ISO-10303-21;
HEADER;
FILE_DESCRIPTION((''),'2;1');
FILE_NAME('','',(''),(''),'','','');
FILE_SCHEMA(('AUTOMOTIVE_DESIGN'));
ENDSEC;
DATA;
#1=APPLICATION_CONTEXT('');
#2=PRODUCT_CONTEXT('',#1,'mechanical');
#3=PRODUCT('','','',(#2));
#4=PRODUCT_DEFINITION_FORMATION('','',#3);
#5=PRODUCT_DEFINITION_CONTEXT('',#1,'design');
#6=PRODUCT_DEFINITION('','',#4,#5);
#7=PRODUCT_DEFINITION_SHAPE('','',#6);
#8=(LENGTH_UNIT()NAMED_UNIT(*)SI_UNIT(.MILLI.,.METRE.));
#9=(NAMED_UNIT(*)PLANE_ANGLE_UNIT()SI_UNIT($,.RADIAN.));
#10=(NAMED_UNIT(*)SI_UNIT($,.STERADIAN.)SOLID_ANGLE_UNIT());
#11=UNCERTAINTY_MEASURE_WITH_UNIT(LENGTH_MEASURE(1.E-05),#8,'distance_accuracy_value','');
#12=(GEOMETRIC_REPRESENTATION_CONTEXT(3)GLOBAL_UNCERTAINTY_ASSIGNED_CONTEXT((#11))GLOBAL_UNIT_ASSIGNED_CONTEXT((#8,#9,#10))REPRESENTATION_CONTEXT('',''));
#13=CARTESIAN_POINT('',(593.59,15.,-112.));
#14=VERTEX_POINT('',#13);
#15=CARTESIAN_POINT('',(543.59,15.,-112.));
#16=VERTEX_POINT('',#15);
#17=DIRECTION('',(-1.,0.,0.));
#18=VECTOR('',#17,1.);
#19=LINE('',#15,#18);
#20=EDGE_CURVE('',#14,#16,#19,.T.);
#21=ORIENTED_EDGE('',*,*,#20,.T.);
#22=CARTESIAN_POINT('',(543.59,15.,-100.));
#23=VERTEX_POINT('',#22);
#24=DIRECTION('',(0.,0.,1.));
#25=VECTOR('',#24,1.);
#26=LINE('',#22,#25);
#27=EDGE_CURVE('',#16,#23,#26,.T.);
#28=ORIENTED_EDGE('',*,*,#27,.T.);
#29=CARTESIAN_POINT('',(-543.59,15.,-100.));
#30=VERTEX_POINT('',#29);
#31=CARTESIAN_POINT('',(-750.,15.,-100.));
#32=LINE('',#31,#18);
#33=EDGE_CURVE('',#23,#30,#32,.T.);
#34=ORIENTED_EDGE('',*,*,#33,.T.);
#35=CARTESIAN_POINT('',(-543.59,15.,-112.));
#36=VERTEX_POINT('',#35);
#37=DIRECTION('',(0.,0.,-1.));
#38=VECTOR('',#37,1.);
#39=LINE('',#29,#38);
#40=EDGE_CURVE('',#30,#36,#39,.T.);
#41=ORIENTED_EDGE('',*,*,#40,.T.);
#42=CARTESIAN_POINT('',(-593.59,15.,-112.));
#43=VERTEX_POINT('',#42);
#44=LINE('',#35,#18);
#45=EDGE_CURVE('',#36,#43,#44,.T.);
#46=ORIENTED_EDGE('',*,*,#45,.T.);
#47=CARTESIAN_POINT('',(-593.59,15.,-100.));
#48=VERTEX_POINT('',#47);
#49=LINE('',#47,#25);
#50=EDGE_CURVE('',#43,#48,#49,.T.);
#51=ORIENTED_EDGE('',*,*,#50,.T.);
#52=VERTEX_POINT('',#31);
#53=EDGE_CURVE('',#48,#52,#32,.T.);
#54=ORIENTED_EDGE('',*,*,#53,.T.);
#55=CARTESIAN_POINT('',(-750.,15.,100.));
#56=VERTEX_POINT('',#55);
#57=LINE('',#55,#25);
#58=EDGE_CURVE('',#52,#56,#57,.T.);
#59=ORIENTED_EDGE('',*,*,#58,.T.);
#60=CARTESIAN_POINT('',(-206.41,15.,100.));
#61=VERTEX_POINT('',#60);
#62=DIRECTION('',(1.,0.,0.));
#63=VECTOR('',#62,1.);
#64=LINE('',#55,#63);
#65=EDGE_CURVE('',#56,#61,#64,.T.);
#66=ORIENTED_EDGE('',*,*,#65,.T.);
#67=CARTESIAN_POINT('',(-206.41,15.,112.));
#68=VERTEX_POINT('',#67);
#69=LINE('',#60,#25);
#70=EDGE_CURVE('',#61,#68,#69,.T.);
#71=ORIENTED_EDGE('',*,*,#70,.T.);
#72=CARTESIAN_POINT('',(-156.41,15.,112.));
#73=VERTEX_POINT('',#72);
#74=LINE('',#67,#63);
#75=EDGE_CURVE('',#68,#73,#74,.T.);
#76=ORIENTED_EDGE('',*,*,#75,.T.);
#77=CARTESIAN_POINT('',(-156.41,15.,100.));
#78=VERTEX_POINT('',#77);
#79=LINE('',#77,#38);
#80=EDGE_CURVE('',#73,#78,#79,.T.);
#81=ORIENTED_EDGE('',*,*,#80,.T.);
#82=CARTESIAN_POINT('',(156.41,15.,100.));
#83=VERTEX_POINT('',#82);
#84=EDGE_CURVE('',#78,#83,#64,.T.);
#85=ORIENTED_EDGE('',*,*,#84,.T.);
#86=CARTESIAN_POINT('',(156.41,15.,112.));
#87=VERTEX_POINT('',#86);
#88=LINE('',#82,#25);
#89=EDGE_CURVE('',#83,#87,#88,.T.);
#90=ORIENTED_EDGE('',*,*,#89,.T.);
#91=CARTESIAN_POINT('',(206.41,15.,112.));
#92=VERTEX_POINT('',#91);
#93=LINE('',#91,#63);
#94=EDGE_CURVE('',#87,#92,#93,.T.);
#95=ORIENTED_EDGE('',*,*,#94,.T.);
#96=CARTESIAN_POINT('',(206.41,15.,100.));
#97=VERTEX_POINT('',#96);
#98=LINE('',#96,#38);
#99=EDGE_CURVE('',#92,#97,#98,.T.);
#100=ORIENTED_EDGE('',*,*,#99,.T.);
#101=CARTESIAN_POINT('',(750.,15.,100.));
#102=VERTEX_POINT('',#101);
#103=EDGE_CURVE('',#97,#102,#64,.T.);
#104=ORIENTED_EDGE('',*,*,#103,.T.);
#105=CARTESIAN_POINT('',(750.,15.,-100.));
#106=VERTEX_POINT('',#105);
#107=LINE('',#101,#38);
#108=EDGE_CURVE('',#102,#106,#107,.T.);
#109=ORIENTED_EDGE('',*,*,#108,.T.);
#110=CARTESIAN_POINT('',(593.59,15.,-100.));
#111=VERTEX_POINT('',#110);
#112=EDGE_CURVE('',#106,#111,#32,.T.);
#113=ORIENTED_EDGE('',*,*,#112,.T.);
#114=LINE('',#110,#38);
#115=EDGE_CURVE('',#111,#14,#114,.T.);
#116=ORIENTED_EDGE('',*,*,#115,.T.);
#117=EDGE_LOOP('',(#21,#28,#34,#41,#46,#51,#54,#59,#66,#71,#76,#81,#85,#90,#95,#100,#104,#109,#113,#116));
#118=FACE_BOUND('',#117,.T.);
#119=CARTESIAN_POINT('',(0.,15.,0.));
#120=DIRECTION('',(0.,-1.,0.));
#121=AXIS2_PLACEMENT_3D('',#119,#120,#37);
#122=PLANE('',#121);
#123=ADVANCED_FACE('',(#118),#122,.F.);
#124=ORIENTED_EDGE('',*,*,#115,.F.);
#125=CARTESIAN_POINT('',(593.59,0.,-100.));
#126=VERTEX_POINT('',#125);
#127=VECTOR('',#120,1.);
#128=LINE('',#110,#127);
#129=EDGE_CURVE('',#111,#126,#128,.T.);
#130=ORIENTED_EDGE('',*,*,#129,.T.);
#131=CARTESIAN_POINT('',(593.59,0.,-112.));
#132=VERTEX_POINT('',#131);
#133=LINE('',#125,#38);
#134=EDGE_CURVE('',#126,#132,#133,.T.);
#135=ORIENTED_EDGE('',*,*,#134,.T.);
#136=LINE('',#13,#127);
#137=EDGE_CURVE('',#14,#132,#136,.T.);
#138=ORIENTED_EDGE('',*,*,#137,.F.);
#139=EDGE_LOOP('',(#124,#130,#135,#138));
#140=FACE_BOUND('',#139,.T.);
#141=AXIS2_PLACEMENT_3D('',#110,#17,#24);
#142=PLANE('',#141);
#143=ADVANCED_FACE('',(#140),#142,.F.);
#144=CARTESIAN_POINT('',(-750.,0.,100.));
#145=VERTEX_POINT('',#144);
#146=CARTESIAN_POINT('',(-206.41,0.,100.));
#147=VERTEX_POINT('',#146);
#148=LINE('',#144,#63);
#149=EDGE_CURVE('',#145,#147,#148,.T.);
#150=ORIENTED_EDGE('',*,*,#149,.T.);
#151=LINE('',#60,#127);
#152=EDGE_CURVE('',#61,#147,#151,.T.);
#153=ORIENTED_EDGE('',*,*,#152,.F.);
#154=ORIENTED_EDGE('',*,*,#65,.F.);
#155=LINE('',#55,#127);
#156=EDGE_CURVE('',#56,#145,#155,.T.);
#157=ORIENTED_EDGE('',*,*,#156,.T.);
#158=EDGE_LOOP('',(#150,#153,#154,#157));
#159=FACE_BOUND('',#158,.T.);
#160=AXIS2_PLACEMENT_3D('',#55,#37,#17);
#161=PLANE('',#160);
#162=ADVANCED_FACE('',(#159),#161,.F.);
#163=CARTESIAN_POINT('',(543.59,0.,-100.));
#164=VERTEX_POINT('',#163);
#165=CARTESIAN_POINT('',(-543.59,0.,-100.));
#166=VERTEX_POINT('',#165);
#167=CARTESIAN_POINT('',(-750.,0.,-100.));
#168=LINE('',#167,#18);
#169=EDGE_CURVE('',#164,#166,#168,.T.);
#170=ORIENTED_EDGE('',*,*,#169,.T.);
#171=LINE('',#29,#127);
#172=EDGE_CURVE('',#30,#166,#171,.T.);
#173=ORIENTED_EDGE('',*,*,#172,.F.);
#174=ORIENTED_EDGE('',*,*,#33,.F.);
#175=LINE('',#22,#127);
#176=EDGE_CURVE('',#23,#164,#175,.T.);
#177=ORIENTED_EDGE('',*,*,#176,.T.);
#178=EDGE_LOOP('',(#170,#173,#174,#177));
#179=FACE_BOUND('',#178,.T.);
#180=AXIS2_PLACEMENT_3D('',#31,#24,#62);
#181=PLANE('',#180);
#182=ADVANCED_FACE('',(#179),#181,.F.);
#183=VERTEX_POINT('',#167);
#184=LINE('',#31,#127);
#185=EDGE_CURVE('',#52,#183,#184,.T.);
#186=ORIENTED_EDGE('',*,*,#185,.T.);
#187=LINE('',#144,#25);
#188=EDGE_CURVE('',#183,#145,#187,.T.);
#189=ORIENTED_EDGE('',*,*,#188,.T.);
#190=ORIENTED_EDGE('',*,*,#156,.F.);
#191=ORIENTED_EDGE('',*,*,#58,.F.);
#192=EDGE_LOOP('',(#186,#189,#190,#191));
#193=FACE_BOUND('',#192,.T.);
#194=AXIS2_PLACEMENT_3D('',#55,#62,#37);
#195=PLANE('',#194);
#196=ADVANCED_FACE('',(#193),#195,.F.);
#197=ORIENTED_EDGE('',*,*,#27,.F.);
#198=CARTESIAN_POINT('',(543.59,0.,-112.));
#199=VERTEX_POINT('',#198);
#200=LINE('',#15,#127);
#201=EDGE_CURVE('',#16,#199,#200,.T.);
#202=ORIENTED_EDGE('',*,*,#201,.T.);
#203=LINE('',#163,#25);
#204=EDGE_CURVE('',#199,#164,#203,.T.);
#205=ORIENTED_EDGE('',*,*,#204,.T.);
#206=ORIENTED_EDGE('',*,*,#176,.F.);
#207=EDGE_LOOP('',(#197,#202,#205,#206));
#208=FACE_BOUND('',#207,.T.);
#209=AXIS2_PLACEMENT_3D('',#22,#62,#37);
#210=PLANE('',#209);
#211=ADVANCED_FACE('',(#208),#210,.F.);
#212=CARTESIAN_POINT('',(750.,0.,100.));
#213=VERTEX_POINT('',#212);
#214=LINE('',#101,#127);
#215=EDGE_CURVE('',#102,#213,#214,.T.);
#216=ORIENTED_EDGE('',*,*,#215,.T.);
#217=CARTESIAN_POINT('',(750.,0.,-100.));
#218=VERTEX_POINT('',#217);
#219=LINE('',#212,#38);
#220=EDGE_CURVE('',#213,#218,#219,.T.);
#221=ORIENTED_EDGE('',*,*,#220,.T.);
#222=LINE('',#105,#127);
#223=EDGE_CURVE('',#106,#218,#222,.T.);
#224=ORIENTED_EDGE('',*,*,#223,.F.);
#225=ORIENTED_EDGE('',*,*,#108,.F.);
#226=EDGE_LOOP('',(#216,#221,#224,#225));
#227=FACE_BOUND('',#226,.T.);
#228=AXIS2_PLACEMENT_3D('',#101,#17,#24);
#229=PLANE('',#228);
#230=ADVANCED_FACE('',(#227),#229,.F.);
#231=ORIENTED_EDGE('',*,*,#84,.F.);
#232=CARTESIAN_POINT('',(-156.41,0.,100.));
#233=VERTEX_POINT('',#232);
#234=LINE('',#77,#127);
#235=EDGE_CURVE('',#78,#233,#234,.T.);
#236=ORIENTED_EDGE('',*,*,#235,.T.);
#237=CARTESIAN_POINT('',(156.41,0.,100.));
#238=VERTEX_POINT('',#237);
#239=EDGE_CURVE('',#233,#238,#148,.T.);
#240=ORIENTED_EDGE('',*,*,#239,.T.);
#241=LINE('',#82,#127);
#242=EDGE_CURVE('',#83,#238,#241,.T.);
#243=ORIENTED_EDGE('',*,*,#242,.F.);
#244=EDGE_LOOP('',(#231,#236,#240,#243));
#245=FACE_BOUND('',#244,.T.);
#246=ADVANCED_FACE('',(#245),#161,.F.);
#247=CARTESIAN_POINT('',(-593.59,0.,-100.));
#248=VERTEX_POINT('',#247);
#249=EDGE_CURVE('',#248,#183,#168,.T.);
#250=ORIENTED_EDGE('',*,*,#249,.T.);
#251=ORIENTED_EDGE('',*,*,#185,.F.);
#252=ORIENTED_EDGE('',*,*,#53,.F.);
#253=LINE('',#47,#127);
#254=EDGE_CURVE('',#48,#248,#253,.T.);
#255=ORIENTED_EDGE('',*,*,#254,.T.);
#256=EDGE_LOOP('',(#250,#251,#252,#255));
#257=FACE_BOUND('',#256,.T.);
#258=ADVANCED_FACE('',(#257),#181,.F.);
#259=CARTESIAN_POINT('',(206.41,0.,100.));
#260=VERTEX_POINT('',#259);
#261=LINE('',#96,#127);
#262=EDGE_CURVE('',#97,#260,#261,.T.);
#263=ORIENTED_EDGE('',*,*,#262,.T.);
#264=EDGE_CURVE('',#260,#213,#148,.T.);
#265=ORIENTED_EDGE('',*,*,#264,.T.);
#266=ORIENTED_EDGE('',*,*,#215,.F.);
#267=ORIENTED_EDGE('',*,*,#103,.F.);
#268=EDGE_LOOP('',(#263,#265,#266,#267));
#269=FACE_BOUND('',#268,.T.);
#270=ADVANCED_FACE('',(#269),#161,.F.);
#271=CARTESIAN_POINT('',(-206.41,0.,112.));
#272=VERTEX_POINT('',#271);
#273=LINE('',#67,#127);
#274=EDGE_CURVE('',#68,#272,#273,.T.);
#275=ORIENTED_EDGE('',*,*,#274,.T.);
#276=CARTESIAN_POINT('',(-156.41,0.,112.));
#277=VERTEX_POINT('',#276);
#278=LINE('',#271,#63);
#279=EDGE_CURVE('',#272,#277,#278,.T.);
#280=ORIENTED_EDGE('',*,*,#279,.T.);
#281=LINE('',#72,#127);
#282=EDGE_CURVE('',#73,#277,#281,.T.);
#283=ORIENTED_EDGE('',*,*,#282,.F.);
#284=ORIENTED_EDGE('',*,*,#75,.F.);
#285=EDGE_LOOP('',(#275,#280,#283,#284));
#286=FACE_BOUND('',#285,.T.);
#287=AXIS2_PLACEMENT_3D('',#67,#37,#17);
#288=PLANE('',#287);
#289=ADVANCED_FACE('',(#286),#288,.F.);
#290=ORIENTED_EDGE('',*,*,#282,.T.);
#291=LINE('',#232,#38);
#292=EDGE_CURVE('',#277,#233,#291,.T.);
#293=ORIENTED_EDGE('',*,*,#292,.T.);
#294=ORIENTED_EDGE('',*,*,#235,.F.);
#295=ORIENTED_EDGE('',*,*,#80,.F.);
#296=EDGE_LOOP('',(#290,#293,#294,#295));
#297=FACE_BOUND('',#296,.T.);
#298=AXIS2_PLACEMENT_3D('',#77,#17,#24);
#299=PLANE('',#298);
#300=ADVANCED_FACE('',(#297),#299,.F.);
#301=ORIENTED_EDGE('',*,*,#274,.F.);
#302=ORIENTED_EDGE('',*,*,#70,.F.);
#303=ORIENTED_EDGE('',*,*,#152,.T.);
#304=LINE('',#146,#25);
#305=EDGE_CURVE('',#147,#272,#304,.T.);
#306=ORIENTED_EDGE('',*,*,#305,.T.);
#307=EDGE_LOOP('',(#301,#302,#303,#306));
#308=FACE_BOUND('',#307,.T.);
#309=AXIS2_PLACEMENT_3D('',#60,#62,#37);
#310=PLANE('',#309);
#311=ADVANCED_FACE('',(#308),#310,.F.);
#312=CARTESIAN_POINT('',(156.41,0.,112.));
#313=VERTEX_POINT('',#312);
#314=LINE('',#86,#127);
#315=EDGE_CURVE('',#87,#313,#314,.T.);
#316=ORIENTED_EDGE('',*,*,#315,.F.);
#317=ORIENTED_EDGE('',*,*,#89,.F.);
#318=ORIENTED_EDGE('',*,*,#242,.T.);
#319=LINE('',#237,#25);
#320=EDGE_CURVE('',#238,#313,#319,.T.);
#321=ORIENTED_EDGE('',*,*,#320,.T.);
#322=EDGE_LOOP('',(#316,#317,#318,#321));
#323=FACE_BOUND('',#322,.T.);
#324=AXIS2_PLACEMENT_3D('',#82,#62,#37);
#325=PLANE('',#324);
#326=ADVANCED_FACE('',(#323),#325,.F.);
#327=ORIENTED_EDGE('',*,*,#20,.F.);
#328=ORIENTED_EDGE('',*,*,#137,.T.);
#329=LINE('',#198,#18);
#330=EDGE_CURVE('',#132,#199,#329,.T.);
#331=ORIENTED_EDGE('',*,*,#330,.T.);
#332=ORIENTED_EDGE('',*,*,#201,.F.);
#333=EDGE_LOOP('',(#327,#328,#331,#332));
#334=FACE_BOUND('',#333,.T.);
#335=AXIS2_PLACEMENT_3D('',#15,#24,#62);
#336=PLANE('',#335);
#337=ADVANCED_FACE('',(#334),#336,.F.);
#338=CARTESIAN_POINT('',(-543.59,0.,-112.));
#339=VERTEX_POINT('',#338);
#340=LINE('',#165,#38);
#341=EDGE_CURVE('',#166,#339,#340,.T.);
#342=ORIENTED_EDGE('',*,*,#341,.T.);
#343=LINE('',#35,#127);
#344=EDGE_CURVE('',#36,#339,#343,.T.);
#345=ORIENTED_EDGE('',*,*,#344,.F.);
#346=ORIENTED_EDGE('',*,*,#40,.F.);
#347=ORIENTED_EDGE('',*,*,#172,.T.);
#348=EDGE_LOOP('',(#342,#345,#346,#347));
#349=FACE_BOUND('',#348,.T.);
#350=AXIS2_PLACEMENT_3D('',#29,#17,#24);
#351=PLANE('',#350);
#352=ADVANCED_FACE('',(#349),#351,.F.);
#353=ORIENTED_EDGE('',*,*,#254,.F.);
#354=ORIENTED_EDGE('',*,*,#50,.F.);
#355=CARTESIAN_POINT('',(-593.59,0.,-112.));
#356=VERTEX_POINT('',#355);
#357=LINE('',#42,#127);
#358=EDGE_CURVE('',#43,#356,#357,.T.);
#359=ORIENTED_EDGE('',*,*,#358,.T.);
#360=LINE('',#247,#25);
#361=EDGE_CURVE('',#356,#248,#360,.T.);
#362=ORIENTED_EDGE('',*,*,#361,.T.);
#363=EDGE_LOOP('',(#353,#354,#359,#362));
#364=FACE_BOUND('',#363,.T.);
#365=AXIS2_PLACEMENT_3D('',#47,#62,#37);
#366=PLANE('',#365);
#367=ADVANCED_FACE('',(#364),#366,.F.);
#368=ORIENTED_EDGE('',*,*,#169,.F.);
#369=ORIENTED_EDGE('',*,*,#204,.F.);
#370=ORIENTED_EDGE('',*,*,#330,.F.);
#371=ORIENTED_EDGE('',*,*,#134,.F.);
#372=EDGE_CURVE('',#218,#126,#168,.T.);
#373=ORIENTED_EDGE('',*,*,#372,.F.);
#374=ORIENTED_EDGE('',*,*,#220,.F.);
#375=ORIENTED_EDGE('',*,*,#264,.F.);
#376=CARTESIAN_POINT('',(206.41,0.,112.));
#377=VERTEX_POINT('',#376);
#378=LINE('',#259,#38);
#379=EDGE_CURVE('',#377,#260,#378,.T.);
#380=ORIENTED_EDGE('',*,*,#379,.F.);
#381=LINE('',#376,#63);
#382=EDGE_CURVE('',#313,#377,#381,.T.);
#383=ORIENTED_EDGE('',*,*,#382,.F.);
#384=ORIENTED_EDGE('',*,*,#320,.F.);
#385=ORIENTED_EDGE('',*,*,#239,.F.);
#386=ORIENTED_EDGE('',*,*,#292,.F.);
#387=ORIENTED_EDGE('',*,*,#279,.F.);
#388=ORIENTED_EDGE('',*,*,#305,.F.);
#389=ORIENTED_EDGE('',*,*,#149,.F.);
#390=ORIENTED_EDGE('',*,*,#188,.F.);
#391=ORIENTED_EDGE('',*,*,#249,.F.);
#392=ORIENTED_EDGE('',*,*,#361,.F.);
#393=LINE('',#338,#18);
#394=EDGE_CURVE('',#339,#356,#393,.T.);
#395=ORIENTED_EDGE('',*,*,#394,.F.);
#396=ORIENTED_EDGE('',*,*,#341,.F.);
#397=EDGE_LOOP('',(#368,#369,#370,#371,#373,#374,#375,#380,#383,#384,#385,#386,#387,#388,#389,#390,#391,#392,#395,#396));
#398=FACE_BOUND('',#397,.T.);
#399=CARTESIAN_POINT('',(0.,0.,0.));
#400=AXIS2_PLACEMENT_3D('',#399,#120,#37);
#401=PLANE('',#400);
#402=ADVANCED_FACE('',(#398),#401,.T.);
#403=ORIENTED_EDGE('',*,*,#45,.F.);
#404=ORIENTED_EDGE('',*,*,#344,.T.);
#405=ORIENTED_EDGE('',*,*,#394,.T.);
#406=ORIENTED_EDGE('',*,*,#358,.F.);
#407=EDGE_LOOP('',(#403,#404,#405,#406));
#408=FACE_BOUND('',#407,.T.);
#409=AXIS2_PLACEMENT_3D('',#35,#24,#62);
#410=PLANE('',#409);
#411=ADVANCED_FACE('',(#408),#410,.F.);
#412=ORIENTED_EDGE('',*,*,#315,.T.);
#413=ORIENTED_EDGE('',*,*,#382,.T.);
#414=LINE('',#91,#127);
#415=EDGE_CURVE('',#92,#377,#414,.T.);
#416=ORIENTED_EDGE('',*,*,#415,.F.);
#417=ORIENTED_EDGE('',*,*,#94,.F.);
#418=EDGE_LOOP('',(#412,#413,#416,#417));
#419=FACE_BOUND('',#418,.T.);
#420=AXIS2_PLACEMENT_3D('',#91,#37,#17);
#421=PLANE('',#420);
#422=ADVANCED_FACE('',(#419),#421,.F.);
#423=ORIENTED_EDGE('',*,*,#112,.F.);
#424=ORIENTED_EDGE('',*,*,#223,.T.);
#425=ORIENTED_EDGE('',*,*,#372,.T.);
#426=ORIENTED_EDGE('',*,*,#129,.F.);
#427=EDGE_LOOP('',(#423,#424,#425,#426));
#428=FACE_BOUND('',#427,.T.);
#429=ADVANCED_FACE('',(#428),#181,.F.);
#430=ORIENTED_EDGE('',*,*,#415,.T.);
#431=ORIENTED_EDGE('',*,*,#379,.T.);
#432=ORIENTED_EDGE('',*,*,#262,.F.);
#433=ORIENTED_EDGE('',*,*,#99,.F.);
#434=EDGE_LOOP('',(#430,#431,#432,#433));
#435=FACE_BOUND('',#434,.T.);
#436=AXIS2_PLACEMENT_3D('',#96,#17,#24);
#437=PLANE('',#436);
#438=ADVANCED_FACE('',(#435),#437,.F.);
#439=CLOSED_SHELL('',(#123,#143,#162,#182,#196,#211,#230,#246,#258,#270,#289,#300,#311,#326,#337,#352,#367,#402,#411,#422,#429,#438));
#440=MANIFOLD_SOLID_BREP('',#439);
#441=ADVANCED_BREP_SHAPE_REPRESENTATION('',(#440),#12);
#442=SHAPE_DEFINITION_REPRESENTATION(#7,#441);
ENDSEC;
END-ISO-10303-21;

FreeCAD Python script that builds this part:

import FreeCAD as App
import Part
import Sketcher

V = App.Vector


def add_polygon(sketch, points):
    """Adds a closed chain of lines whose ends are joined by coincident constraints."""
    first, n = sketch.GeometryCount, len(points)
    for a, b in zip(points, points[1:] + points[:1]):
        sketch.addGeometry(Part.LineSegment(App.Vector(*a, 0), App.Vector(*b, 0)), False)
    for i in range(n):
        sketch.addConstraint(Sketcher.Constraint("Coincident", first + i, 2, first + (i + 1) % n, 1))

doc = App.newDocument("Part")
body = doc.addObject("PartDesign::Body", "Body")

# Sketch on XZ plane
sketch1 = doc.addObject("Sketcher::SketchObject", "Sketch")
body.addObject(sketch1)
sketch1.AttachmentSupport = (doc.XZ_Plane, [""])
sketch1.MapMode = "FlatFace"
add_polygon(sketch1, [(-750, -100), (-750, 100), (750, 100), (750, -100)])  # lines 0-3
sketch1.addConstraint([
    Sketcher.Constraint("Vertical", 0),
    Sketcher.Constraint("Horizontal", 1),
    Sketcher.Constraint("Vertical", 2),
    Sketcher.Constraint("Horizontal", 3),
    Sketcher.Constraint("Symmetric", 0, 2, 2, 2, -1, 1),
    Sketcher.Constraint("DistanceX", 1, 1, 1, 2, 1500.0),
    Sketcher.Constraint("DistanceY", 0, 1, 0, 2, 200.0),
])
pad1 = doc.addObject("PartDesign::Pad", "Pad")
body.addObject(pad1)
pad1.Profile = sketch1
pad1.Length = 15
pad1.Reversed = True

# Sketch on XZ plane
sketch2 = doc.addObject("Sketcher::SketchObject", "Sketch001")
body.addObject(sketch2)
sketch2.AttachmentSupport = (doc.XZ_Plane, [""])
sketch2.MapMode = "FlatFace"
add_polygon(sketch2, [(543.59, -112), (543.59, -100), (593.59, -100), (593.59, -112)])  # lines 0-3
add_polygon(sketch2, [(-593.59, -112), (-593.59, -100), (-543.59, -100), (-543.59, -112)])  # lines 4-7
add_polygon(sketch2, [(-206.41, 100), (-206.41, 112), (-156.41, 112), (-156.41, 100)])  # lines 8-11
add_polygon(sketch2, [(156.41, 100), (156.41, 112), (206.41, 112), (206.41, 100)])  # lines 12-15
sketch2.addConstraint([
    Sketcher.Constraint("Vertical", 0),
    Sketcher.Constraint("Horizontal", 1),
    Sketcher.Constraint("Vertical", 2),
    Sketcher.Constraint("Horizontal", 3),
    Sketcher.Constraint("Vertical", 4),
    Sketcher.Constraint("Horizontal", 5),
    Sketcher.Constraint("Vertical", 6),
    Sketcher.Constraint("Horizontal", 7),
    Sketcher.Constraint("Vertical", 8),
    Sketcher.Constraint("Horizontal", 9),
    Sketcher.Constraint("Vertical", 10),
    Sketcher.Constraint("Horizontal", 11),
    Sketcher.Constraint("Vertical", 12),
    Sketcher.Constraint("Horizontal", 13),
    Sketcher.Constraint("Vertical", 14),
    Sketcher.Constraint("Horizontal", 15),
    Sketcher.Constraint("Symmetric", 1, 2, 4, 2, -2),
    Sketcher.Constraint("Symmetric", 3, 2, 6, 2, -2),
    Sketcher.Constraint("Symmetric", 9, 2, 12, 2, -2),
    Sketcher.Constraint("Symmetric", 11, 2, 14, 2, -2),
    Sketcher.Constraint("Equal", 7, 9),
    Sketcher.Constraint("Equal", 6, 8),
    Sketcher.Constraint("DistanceX", 1, 1, 1, 2, 50.0),
    Sketcher.Constraint("DistanceY", 0, 1, 0, 2, 12.0),
    Sketcher.Constraint("DistanceY", 0, 2, -1, 1, 100.0),
    Sketcher.Constraint("DistanceY", -1, 1, 8, 2, 112.0),
    Sketcher.Constraint("DistanceX", 8, 2, 0, 2, 750.0),
    Sketcher.Constraint("DistanceX", -1, 1, 0, 2, 543.59),
])
pad2 = doc.addObject("PartDesign::Pad", "Pad001")
body.addObject(pad2)
pad2.Profile = sketch2
pad2.Length = 15
pad2.Reversed = True

doc.recompute()
